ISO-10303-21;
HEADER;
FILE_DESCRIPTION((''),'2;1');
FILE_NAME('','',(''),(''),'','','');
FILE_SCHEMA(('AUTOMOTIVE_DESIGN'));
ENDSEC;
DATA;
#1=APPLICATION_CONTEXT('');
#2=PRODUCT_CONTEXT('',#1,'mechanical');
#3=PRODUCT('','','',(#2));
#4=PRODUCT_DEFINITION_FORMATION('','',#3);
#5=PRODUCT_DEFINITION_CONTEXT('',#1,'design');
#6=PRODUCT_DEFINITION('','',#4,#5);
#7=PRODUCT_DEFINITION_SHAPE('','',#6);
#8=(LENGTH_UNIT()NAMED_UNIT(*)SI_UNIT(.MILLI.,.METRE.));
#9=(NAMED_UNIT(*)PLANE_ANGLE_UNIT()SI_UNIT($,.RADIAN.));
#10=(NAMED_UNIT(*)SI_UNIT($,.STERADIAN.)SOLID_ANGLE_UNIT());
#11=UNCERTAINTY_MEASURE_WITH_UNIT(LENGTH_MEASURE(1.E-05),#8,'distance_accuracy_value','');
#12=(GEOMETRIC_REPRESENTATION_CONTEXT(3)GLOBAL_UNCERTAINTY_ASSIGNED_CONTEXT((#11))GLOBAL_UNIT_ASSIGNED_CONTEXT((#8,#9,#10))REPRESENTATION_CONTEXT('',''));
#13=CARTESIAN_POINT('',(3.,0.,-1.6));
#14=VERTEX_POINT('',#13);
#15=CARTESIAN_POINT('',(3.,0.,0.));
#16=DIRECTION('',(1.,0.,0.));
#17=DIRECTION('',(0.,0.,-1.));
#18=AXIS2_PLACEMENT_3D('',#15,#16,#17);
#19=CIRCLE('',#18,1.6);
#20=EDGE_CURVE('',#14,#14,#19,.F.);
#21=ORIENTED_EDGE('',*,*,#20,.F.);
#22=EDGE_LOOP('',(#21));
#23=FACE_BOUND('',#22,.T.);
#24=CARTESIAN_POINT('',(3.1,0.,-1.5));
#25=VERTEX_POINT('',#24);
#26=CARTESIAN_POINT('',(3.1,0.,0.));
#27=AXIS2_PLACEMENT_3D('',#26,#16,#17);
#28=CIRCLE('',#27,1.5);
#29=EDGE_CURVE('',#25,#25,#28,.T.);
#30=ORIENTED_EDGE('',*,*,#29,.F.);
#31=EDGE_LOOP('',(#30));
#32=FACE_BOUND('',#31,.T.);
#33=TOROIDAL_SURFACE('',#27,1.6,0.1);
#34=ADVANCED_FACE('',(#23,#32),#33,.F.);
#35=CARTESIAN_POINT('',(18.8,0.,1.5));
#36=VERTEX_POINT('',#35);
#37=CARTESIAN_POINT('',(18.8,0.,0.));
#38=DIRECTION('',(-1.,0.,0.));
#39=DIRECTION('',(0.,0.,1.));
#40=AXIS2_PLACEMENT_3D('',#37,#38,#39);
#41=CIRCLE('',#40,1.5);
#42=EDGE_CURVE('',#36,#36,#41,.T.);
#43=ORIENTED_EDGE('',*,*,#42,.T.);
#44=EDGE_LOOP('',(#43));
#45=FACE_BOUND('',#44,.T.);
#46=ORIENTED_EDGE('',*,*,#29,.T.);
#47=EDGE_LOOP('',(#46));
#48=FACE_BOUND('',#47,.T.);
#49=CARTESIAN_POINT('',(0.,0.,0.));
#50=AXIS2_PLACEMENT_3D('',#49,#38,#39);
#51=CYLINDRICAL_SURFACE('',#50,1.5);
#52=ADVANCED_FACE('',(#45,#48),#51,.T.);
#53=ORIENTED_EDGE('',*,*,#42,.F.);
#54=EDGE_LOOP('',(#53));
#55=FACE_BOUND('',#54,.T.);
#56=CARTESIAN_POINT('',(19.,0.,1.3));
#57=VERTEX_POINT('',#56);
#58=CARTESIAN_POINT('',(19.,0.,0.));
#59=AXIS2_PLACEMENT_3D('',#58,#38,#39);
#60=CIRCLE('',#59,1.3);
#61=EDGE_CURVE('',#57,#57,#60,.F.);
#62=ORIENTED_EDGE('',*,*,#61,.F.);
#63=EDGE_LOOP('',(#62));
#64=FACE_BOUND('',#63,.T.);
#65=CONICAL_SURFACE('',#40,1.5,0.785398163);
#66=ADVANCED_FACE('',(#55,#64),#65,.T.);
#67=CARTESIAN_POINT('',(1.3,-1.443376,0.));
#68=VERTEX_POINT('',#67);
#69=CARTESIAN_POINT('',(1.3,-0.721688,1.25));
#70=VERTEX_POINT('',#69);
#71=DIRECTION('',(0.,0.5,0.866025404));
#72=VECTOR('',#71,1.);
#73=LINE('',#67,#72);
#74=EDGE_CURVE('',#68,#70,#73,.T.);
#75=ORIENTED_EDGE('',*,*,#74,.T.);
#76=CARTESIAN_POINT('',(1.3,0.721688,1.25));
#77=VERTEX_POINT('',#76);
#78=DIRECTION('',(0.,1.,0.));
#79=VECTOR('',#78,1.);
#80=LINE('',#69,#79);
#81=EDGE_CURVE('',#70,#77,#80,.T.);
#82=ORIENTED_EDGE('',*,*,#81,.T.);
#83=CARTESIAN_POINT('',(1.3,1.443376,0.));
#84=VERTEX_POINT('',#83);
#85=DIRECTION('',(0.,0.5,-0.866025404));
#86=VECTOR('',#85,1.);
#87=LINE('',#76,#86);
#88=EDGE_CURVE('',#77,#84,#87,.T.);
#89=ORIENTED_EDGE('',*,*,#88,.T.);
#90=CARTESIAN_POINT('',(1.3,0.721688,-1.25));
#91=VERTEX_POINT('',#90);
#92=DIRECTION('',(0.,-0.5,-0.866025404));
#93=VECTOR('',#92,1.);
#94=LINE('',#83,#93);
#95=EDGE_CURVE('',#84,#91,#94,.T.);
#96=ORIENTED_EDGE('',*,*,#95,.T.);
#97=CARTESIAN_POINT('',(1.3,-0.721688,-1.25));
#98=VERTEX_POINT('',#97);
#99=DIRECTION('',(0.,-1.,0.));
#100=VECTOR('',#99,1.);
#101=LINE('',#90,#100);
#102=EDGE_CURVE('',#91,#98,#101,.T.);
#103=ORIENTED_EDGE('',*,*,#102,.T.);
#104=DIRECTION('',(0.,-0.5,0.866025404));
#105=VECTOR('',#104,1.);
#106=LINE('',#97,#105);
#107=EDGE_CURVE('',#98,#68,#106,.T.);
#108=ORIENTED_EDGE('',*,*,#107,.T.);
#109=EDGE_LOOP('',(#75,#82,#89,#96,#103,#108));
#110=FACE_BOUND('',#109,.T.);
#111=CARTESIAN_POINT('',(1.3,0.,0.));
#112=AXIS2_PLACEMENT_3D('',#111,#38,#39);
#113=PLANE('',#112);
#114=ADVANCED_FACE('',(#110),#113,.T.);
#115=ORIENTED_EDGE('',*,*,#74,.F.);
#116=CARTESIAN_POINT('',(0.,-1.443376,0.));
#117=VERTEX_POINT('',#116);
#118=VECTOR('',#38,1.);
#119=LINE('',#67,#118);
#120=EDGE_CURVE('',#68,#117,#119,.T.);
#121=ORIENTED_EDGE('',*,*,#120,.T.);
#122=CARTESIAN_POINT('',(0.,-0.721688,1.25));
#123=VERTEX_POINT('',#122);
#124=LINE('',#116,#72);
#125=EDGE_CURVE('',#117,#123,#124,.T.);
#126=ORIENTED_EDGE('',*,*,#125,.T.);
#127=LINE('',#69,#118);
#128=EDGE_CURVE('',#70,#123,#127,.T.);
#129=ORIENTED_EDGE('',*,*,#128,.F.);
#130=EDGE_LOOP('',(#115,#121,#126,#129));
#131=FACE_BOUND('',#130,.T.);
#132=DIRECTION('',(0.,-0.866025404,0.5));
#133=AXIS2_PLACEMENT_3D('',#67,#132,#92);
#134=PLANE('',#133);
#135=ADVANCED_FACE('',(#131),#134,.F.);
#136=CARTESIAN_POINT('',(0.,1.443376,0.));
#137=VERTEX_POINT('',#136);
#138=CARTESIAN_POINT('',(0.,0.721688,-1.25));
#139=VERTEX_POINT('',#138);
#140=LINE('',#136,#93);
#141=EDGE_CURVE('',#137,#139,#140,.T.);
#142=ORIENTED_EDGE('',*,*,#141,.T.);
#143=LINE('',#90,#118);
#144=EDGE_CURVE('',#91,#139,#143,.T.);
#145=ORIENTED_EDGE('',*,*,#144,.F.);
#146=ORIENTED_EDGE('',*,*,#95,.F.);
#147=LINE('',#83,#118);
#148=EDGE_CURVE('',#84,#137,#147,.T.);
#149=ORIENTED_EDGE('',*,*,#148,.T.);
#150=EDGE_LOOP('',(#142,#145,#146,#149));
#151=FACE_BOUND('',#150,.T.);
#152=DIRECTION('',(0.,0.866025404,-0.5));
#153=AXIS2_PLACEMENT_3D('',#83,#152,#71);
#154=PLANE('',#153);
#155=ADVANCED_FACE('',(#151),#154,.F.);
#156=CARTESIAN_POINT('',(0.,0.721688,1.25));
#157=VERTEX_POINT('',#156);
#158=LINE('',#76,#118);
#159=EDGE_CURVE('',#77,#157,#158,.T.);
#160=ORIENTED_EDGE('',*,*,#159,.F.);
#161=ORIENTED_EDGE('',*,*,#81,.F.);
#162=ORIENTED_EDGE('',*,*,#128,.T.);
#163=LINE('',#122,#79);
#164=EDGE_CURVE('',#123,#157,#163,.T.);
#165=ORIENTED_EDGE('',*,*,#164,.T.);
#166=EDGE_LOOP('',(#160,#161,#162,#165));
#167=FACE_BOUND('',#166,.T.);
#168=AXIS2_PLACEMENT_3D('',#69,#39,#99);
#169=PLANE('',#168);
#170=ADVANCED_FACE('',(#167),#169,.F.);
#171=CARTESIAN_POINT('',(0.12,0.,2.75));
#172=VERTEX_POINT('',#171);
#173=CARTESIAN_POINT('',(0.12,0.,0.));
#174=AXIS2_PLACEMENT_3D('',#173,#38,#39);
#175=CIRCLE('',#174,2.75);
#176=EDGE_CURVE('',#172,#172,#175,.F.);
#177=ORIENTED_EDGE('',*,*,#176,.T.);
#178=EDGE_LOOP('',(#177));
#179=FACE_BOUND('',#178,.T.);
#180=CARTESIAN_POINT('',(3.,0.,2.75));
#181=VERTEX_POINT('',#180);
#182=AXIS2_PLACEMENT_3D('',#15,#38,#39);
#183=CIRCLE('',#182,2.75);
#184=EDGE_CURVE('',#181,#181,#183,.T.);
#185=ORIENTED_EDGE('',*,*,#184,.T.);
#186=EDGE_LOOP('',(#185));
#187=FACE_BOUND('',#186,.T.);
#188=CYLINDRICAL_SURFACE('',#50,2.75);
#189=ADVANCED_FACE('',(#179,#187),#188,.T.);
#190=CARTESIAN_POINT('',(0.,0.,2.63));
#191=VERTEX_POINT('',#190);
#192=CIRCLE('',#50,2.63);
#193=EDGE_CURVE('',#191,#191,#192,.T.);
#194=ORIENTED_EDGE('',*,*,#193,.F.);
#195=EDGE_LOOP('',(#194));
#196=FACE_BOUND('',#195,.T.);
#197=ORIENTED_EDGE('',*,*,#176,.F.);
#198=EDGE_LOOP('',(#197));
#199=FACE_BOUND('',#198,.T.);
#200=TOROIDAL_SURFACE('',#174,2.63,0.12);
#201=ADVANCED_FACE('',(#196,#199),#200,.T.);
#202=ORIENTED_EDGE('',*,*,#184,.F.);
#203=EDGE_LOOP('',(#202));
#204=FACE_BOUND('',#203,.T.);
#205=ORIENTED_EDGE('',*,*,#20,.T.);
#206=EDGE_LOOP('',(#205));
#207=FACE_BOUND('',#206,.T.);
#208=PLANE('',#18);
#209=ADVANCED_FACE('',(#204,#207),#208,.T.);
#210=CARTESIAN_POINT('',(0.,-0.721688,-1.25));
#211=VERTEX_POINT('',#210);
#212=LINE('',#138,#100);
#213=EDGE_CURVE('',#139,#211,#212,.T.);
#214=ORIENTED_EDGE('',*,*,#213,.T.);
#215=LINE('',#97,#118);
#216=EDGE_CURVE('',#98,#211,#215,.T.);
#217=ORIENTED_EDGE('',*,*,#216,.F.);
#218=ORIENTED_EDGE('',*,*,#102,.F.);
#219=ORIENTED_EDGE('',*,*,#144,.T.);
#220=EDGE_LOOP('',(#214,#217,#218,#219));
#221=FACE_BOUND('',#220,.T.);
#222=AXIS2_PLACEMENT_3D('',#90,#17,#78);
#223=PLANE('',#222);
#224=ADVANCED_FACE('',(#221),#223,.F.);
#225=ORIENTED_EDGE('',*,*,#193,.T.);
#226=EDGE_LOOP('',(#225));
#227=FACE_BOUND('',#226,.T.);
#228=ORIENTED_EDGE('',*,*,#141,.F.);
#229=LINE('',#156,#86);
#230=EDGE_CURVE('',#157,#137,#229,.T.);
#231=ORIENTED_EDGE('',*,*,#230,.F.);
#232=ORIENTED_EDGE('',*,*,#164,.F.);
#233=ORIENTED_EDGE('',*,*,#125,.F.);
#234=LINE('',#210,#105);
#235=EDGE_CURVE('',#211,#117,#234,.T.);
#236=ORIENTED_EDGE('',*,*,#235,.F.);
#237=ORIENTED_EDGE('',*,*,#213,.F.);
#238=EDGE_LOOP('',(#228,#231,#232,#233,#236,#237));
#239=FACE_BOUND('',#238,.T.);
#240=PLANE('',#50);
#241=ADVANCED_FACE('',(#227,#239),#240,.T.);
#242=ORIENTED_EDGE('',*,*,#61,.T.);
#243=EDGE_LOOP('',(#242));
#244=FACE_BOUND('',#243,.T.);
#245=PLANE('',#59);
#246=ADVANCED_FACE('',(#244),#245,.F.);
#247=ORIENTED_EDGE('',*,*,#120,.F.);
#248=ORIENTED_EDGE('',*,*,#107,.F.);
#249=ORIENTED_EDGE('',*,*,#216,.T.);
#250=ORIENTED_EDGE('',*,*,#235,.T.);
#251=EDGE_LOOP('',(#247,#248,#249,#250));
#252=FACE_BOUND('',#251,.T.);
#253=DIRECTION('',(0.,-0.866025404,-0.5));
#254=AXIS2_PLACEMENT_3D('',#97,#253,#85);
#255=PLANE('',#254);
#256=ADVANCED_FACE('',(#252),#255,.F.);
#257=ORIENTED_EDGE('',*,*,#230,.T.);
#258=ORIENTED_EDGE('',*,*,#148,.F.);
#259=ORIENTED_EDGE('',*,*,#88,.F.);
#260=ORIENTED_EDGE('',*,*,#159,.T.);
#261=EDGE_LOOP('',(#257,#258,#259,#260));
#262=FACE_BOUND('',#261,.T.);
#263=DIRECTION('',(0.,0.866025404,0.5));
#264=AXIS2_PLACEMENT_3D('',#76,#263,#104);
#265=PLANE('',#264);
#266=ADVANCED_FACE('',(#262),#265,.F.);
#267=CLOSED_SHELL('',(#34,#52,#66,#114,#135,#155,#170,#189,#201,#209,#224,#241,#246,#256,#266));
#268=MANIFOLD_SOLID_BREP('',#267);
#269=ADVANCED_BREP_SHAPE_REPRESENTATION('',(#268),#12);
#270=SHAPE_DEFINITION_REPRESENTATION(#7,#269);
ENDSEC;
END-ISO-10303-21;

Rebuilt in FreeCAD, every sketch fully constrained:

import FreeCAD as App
import Part
import Sketcher
Q = App.Units.Quantity


def edges_at(feature, points):
    """Names of the edges that pass closest to the given points."""
    edges = feature.Shape.Edges
    near = lambda p: min(range(len(edges)), key=lambda i: edges[i].distToShape(Part.Vertex(*p))[0])
    return sorted({f"Edge{near(p) + 1}" for p in points})


def add_polygon(sketch, points):
    """Adds a closed chain of lines whose ends are joined by coincident constraints."""
    first, n = sketch.GeometryCount, len(points)
    for a, b in zip(points, points[1:] + points[:1]):
        sketch.addGeometry(Part.LineSegment(App.Vector(*a, 0), App.Vector(*b, 0)), False)
    for i in range(n):
        sketch.addConstraint(Sketcher.Constraint("Coincident", first + i, 2, first + (i + 1) % n, 1))

doc = App.newDocument("Part")
params = doc.addObject("Spreadsheet::Sheet", "Params")
for row, (alias, value) in enumerate([
    ("sketch1_width", "16 mm"),
    ("sketch1_width2", "3 mm"),
    ("sketch1_height", "1.5 mm"),
    ("sketch1_height2", "1.25 mm"),
    ("revolution_angle", "360 deg"),
    ("fillet_radius", "0.1 mm"),
    ("fillet2_radius", "0.12 mm"),
    ("chamfer_size", "0.2 mm"),
    ("pocket1_length", "1.3 mm"),
], start=1):
    params.set(f"A{row}", alias)
    params.set(f"B{row}", "=" + value)
    params.setAlias(f"B{row}", alias)

body = doc.addObject("PartDesign::Body", "Body")

sketch1 = body.newObject("Sketcher::SketchObject", "Sketch")
sketch1.AttachmentSupport = (doc.getObject("XY_Plane"), [""])
sketch1.MapMode = "FlatFace"
add_polygon(sketch1, [(19, 0), (19, 1.5), (3, 1.5), (3, 2.8), (0, 2.8), (0, 0)])
sketch1.addConstraint([
    Sketcher.Constraint("Vertical", 0),
    Sketcher.Constraint("Horizontal", 1),
    Sketcher.Constraint("Vertical", 2),
    Sketcher.Constraint("Horizontal", 3),
    Sketcher.Constraint("Vertical", 4),
    Sketcher.Constraint("Horizontal", 5),
    Sketcher.Constraint("Coincident", 4, 2, -1, 1),
    Sketcher.Constraint("DistanceX", 1, 2, 1, 1, 16.0),
    Sketcher.Constraint("DistanceX", 3, 2, 3, 1, 3.0),
    Sketcher.Constraint("DistanceY", 0, 1, 0, 2, 1.5),
    Sketcher.Constraint("DistanceY", 2, 1, 2, 2, 1.25),
])
sketch1.setExpression("Constraints[13]", "Params.sketch1_width")
sketch1.setExpression("Constraints[14]", "Params.sketch1_width2")
sketch1.setExpression("Constraints[15]", "Params.sketch1_height")
sketch1.setExpression("Constraints[16]", "Params.sketch1_height2")
revolution = body.newObject("PartDesign::Revolution", "Revolution")
revolution.Profile = sketch1
revolution.ReferenceAxis = (sketch1, ["H_Axis"])
revolution.setExpression("Angle", "Params.revolution_angle")
doc.recompute()

fillet = body.newObject("PartDesign::Fillet", "Fillet")
fillet.Base = (revolution, edges_at(revolution, [(3, 0, -1.5)]))
fillet.setExpression("Radius", "Params.fillet_radius")
doc.recompute()

fillet2 = body.newObject("PartDesign::Fillet", "Fillet001")
fillet2.Base = (fillet, edges_at(fillet, [(0, 0, -2.75)]))
fillet2.setExpression("Radius", "Params.fillet2_radius")
doc.recompute()

chamfer = body.newObject("PartDesign::Chamfer", "Chamfer")
chamfer.Base = (fillet2, edges_at(fillet2, [(19, 0, -1.5)]))
chamfer.setExpression("Size", "Params.chamfer_size")

sketch2 = body.newObject("Sketcher::SketchObject", "Sketch001")
sketch2.AttachmentSupport = (doc.getObject("YZ_Plane"), [""])
sketch2.MapMode = "FlatFace"
add_polygon(sketch2, [(1.4, 0), (0.7, -1.2), (-0.7, -1.2), (-1.4, 0), (-0.7, 1.2), (0.7, 1.2)])
sketch2.addConstraint([
    Sketcher.Constraint("Horizontal", 1),
    Sketcher.Constraint("Horizontal", 4),
    Sketcher.Constraint("Symmetric", 0, 2, 3, 2, -1, 1),
    Sketcher.Constraint("Symmetric", 2, 2, 5, 2, -1, 1),
    Sketcher.Constraint("PointOnObject", 2, 2, -1),
    Sketcher.Constraint("Parallel", 2, 5),
    Sketcher.Constraint("Vertical", 1, 2, 3, 2),
    Sketcher.Constraint("Angle", 0, Q("-120 deg")),
    Sketcher.Constraint("DistanceY", 1, 2, 3, 2, 2.5),
    Sketcher.Constraint("DistanceX", 1, 2, 1, 1, 1.443376),
])
pocket1 = body.newObject("PartDesign::Pocket", "Pocket")
pocket1.Profile = sketch2
pocket1.setExpression("Length", "Params.pocket1_length")
pocket1.Reversed = True

doc.recompute()
